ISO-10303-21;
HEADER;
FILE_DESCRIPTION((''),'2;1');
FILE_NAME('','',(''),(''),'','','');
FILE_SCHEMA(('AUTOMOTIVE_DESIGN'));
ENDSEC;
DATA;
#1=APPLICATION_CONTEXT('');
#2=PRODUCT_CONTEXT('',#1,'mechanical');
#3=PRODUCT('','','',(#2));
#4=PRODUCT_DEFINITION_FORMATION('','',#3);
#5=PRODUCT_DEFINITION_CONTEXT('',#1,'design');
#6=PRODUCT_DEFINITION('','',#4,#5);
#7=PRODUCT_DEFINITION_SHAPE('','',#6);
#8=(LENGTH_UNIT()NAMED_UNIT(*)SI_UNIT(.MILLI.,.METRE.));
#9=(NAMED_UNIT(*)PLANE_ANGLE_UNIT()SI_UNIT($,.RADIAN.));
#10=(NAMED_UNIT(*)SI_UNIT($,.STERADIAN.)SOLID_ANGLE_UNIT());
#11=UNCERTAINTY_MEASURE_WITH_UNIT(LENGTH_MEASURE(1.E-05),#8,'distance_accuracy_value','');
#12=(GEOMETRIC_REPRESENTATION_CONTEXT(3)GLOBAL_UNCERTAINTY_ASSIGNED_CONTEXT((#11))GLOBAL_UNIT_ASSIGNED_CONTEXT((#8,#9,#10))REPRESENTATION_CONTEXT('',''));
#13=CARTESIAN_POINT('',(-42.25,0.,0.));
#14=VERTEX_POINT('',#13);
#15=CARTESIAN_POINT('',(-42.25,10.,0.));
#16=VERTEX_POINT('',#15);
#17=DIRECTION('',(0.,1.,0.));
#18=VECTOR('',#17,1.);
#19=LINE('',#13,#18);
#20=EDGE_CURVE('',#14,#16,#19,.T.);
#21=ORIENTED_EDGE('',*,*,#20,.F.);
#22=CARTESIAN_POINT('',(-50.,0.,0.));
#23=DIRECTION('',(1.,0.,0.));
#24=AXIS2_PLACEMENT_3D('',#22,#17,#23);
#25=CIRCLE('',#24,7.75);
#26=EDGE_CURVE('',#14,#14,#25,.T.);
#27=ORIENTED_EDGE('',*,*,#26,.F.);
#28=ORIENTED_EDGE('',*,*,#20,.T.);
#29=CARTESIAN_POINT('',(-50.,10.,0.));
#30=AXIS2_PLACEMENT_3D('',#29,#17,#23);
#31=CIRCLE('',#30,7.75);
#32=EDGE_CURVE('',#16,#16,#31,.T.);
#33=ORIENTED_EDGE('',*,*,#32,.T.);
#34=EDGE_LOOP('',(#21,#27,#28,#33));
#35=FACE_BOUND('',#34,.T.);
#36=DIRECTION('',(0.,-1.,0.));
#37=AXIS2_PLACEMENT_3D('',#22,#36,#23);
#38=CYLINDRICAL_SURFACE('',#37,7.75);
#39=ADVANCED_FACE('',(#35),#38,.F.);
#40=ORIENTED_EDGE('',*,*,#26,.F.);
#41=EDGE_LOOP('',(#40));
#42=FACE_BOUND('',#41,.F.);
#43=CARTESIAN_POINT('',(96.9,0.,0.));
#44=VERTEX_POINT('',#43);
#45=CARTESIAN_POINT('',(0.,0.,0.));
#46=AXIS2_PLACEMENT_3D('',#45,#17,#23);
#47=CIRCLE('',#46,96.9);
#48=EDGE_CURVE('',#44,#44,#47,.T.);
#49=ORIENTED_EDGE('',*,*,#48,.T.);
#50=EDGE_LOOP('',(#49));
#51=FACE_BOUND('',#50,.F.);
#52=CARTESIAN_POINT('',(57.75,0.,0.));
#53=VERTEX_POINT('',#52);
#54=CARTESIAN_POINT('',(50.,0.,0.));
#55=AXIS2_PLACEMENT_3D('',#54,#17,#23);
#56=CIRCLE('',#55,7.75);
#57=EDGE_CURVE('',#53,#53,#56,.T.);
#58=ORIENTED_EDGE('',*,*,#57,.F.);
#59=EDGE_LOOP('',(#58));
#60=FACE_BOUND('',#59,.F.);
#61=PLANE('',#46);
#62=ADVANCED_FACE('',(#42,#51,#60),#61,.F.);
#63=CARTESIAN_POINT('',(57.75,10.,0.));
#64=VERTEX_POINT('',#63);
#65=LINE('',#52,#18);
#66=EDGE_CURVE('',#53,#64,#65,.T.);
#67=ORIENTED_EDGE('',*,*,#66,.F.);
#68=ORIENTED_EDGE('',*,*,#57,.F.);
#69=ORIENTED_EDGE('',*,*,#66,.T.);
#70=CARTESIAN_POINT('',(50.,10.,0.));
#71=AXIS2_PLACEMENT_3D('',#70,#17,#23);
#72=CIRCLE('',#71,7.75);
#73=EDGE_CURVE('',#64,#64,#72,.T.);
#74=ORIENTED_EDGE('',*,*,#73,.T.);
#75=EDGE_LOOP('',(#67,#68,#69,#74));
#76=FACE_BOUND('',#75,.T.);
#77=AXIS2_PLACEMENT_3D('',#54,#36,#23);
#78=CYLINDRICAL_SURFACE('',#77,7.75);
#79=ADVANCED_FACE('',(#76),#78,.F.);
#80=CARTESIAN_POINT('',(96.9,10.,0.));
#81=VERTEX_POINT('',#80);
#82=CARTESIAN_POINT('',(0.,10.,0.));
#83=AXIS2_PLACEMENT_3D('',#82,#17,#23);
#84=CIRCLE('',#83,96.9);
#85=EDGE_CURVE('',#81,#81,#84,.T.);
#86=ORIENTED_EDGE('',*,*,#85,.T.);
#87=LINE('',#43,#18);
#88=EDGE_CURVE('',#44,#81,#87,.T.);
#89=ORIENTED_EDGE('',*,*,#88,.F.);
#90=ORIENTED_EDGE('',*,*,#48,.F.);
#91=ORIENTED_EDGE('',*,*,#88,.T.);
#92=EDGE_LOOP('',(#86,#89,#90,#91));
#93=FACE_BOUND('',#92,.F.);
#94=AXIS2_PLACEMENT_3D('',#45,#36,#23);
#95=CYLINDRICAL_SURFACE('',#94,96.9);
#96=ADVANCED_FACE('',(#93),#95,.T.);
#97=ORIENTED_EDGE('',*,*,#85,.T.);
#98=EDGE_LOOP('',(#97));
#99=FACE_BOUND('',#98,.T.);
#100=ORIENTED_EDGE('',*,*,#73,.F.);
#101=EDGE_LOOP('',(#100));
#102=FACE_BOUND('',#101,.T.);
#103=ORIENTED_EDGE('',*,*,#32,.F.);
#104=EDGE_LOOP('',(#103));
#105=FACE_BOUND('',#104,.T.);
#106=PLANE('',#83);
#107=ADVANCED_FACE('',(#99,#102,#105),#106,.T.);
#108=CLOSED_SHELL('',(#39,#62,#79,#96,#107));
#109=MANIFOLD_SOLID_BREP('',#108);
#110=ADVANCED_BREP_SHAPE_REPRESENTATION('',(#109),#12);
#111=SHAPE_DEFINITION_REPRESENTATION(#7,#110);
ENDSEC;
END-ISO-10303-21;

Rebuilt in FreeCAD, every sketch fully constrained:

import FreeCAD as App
import Part
import Sketcher
from FreeCAD import Vector
Q = App.Units.Quantity

doc = App.newDocument("Part")
params = doc.addObject("Spreadsheet::Sheet", "Params")
for row, (alias, value) in enumerate([
    ("sketch1_diameter", "193.8 mm"),
    ("sketch1_diameter2", "15.5 mm"),
    ("pad1_length", "10 mm"),
], start=1):
    params.set(f"A{row}", alias)
    params.set(f"B{row}", "=" + value)
    params.setAlias(f"B{row}", alias)

body = doc.addObject("PartDesign::Body", "Body")

sketch1 = body.newObject("Sketcher::SketchObject", "Sketch")
sketch1.AttachmentSupport = (doc.getObject("XZ_Plane"), [""])
sketch1.MapMode = "FlatFace"
sketch1.addGeometry([
    Part.Circle(Vector(0, 0, 0), Vector(0, 0, 1), 96.9),
    Part.Circle(Vector(-50, 0, 0), Vector(0, 0, 1), 7.75),
    Part.Circle(Vector(50, 0, 0), Vector(0, 0, 1), 7.75),
], False)
sketch1.addConstraint([
    Sketcher.Constraint("Coincident", 0, 3, -1, 1),
    Sketcher.Constraint("Equal", 1, 2),
    Sketcher.Constraint("Symmetric", 1, 3, 2, 3, -1, 1),
    Sketcher.Constraint("PointOnObject", 1, 3, -1),
    Sketcher.Constraint("Diameter", 0, Q("193.8 mm")),
    Sketcher.Constraint("Diameter", 1, Q("15.5 mm")),
    Sketcher.Constraint("DistanceX", 1, 3, -1, 1, Q("50 mm")),
])
sketch1.setExpression("Constraints[4]", "Params.sketch1_diameter")
sketch1.setExpression("Constraints[5]", "Params.sketch1_diameter2")
pad1 = body.newObject("PartDesign::Pad", "Pad")
pad1.Profile = sketch1
pad1.setExpression("Length", "Params.pad1_length")
pad1.Reversed = True

doc.recompute()
